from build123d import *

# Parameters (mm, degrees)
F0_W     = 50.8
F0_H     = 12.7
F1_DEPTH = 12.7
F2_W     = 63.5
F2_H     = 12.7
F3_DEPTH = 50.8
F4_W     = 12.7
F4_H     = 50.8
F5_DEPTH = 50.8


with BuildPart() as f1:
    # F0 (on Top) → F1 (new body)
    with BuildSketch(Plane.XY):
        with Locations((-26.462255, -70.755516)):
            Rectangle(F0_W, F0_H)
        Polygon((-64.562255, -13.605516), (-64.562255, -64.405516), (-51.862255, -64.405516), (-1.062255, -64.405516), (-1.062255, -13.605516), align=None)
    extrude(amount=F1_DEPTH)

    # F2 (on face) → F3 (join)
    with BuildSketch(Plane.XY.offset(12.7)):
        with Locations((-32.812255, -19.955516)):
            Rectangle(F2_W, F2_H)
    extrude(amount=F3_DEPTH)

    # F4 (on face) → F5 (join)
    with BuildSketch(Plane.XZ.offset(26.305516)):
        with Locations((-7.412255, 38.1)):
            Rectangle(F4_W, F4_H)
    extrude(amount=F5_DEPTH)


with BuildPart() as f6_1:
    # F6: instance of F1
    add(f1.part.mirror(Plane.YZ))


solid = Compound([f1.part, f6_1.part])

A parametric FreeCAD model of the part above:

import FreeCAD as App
import Part
import Sketcher
Q = App.Units.Quantity

doc = App.newDocument("Part")
params = doc.addObject("Spreadsheet::Sheet", "Params")
for row, (alias, value) in enumerate([
    ("sketch1_width", "2 in"),
    ("sketch1_width2", "2.5 in"),
    ("pad1_length", "0.5 in"),
    ("sketch2_width", "2.5 in"),
    ("sketch2_height", "0.5 in"),
    ("pad2_length", "2 in"),
    ("sketch3_height", "2 in"),
    ("sketch3_width", "0.5 in"),
    ("pad3_length", "2 in"),
], start=1):
    params.set(f"A{row}", alias)
    params.set(f"B{row}", "=" + value)
    params.setAlias(f"B{row}", alias)

body = doc.addObject("PartDesign::Body", "Body")

sketch1 = doc.addObject("Sketcher::SketchObject", "Sketch")
body.addObject(sketch1)
sketch1.AttachmentSupport = (doc.XY_Plane, [""])
sketch1.MapMode = "FlatFace"
sketch1.addGeometry(Part.LineSegment(App.Vector(-51.862255, -64.405516, 0), App.Vector(-51.862255, -77.105516, 0)), False)
sketch1.addGeometry(Part.LineSegment(App.Vector(-51.862255, -77.105516, 0), App.Vector(-1.062255, -77.105516, 0)), False)
sketch1.addGeometry(Part.LineSegment(App.Vector(-1.062255, -77.105516, 0), App.Vector(-1.062255, -13.605516, 0)), False)
sketch1.addGeometry(Part.LineSegment(App.Vector(-1.062255, -13.605516, 0), App.Vector(-64.562255, -13.605516, 0)), False)
sketch1.addGeometry(Part.LineSegment(App.Vector(-64.562255, -13.605516, 0), App.Vector(-64.562255, -64.405516, 0)), False)
sketch1.addGeometry(Part.LineSegment(App.Vector(-64.562255, -64.405516, 0), App.Vector(-51.862255, -64.405516, 0)), False)
sketch1.addConstraint(Sketcher.Constraint("Coincident", 0, 2, 1, 1))
sketch1.addConstraint(Sketcher.Constraint("Coincident", 1, 2, 2, 1))
sketch1.addConstraint(Sketcher.Constraint("Coincident", 2, 2, 3, 1))
sketch1.addConstraint(Sketcher.Constraint("Coincident", 3, 2, 4, 1))
sketch1.addConstraint(Sketcher.Constraint("Coincident", 4, 2, 5, 1))
sketch1.addConstraint(Sketcher.Constraint("Coincident", 5, 2, 0, 1))
sketch1.addConstraint(Sketcher.Constraint("Vertical", 0))
sketch1.addConstraint(Sketcher.Constraint("Horizontal", 1))
sketch1.addConstraint(Sketcher.Constraint("Vertical", 2))
sketch1.addConstraint(Sketcher.Constraint("Horizontal", 3))
sketch1.addConstraint(Sketcher.Constraint("Vertical", 4))
sketch1.addConstraint(Sketcher.Constraint("Horizontal", 5))
sketch1.addConstraint(Sketcher.Constraint("Equal", 5, 0))
sketch1.addConstraint(Sketcher.Constraint("Equal", 3, 2))
sketch1.addConstraint(Sketcher.Constraint("DistanceX", 1, 1, 1, 2, Q("2 in")))
sketch1.addConstraint(Sketcher.Constraint("DistanceX", 3, 2, 3, 1, Q("2.5 in")))
sketch1.addConstraint(Sketcher.Constraint("DistanceX", 0, 2, -1, 1, 51.862255))
sketch1.addConstraint(Sketcher.Constraint("DistanceY", 0, 2, -1, 1, 77.105516))
sketch1.setExpression("Constraints[14]", "Params.sketch1_width")
sketch1.setExpression("Constraints[15]", "Params.sketch1_width2")
pad1 = doc.addObject("PartDesign::Pad", "Pad")
body.addObject(pad1)
pad1.Profile = sketch1
pad1.setExpression("Length", "Params.pad1_length")

sketch2 = doc.addObject("Sketcher::SketchObject", "Sketch001")
body.addObject(sketch2)
sketch2.AttachmentSupport = (doc.XY_Plane, [""])
sketch2.MapMode = "FlatFace"
sketch2.AttachmentOffset = App.Placement(App.Vector(0, 0, 0.5 * 25.4), App.Rotation())
sketch2.addGeometry(Part.LineSegment(App.Vector(-64.562255, -13.605516, 0), App.Vector(-64.562255, -26.305516, 0)), False)
sketch2.addGeometry(Part.LineSegment(App.Vector(-64.562255, -26.305516, 0), App.Vector(-1.062255, -26.305516, 0)), False)
sketch2.addGeometry(Part.LineSegment(App.Vector(-1.062255, -26.305516, 0), App.Vector(-1.062255, -13.605516, 0)), False)
sketch2.addGeometry(Part.LineSegment(App.Vector(-1.062255, -13.605516, 0), App.Vector(-64.562255, -13.605516, 0)), False)
sketch2.addConstraint(Sketcher.Constraint("Coincident", 0, 2, 1, 1))
sketch2.addConstraint(Sketcher.Constraint("Coincident", 1, 2, 2, 1))
sketch2.addConstraint(Sketcher.Constraint("Coincident", 2, 2, 3, 1))
sketch2.addConstraint(Sketcher.Constraint("Coincident", 3, 2, 0, 1))
sketch2.addConstraint(Sketcher.Constraint("Vertical", 0))
sketch2.addConstraint(Sketcher.Constraint("Horizontal", 1))
sketch2.addConstraint(Sketcher.Constraint("Vertical", 2))
sketch2.addConstraint(Sketcher.Constraint("Horizontal", 3))
sketch2.addConstraint(Sketcher.Constraint("DistanceX", 1, 1, 1, 2, Q("2.5 in")))
sketch2.addConstraint(Sketcher.Constraint("DistanceY", 0, 2, 0, 1, Q("0.5 in")))
sketch2.addConstraint(Sketcher.Constraint("DistanceX", 0, 2, -1, 1, 64.562255))
sketch2.addConstraint(Sketcher.Constraint("DistanceY", 0, 2, -1, 1, 26.305516))
sketch2.setExpression("Constraints[8]", "Params.sketch2_width")
sketch2.setExpression("Constraints[9]", "Params.sketch2_height")
pad2 = doc.addObject("PartDesign::Pad", "Pad001")
body.addObject(pad2)
pad2.Profile = sketch2
pad2.setExpression("Length", "Params.pad2_length")

sketch3 = doc.addObject("Sketcher::SketchObject", "Sketch002")
body.addObject(sketch3)
sketch3.AttachmentSupport = (doc.XZ_Plane, [""])
sketch3.MapMode = "FlatFace"
sketch3.AttachmentOffset = App.Placement(App.Vector(0, 0, 26.305516), App.Rotation())
sketch3.addGeometry(Part.LineSegment(App.Vector(-13.762255, 63.5, 0), App.Vector(-13.762255, 12.7, 0)), False)
sketch3.addGeometry(Part.LineSegment(App.Vector(-13.762255, 12.7, 0), App.Vector(-1.062255, 12.7, 0)), False)
sketch3.addGeometry(Part.LineSegment(App.Vector(-1.062255, 12.7, 0), App.Vector(-1.062255, 63.5, 0)), False)
sketch3.addGeometry(Part.LineSegment(App.Vector(-1.062255, 63.5, 0), App.Vector(-13.762255, 63.5, 0)), False)
sketch3.addConstraint(Sketcher.Constraint("Coincident", 0, 2, 1, 1))
sketch3.addConstraint(Sketcher.Constraint("Coincident", 1, 2, 2, 1))
sketch3.addConstraint(Sketcher.Constraint("Coincident", 2, 2, 3, 1))
sketch3.addConstraint(Sketcher.Constraint("Coincident", 3, 2, 0, 1))
sketch3.addConstraint(Sketcher.Constraint("Vertical", 0))
sketch3.addConstraint(Sketcher.Constraint("Horizontal", 1))
sketch3.addConstraint(Sketcher.Constraint("Vertical", 2))
sketch3.addConstraint(Sketcher.Constraint("Horizontal", 3))
sketch3.addConstraint(Sketcher.Constraint("DistanceY", 0, 2, 0, 1, Q("2 in")))
sketch3.addConstraint(Sketcher.Constraint("DistanceX", 1, 1, 1, 2, Q("0.5 in")))
sketch3.addConstraint(Sketcher.Constraint("DistanceY", -1, 1, 0, 2, Q("0.5 in")))
sketch3.addConstraint(Sketcher.Constraint("DistanceX", 0, 2, -1, 1, 13.762255))
sketch3.setExpression("Constraints[8]", "Params.sketch3_height")
sketch3.setExpression("Constraints[9]", "Params.sketch3_width")
pad3 = doc.addObject("PartDesign::Pad", "Pad002")
body.addObject(pad3)
pad3.Profile = sketch3
pad3.setExpression("Length", "Params.pad3_length")
body2 = doc.addObject("PartDesign::Body", "Body001")
doc.recompute()

mirroring = doc.addObject("Part::Mirroring", "Mirroring")
mirroring.Source = body
mirroring.Base = App.Vector(0, 0, 0)
mirroring.Normal = App.Vector(1, 0, 0)
body2.BaseFeature = mirroring
doc.recompute()
mirroring.Visibility = False

doc.recompute()
